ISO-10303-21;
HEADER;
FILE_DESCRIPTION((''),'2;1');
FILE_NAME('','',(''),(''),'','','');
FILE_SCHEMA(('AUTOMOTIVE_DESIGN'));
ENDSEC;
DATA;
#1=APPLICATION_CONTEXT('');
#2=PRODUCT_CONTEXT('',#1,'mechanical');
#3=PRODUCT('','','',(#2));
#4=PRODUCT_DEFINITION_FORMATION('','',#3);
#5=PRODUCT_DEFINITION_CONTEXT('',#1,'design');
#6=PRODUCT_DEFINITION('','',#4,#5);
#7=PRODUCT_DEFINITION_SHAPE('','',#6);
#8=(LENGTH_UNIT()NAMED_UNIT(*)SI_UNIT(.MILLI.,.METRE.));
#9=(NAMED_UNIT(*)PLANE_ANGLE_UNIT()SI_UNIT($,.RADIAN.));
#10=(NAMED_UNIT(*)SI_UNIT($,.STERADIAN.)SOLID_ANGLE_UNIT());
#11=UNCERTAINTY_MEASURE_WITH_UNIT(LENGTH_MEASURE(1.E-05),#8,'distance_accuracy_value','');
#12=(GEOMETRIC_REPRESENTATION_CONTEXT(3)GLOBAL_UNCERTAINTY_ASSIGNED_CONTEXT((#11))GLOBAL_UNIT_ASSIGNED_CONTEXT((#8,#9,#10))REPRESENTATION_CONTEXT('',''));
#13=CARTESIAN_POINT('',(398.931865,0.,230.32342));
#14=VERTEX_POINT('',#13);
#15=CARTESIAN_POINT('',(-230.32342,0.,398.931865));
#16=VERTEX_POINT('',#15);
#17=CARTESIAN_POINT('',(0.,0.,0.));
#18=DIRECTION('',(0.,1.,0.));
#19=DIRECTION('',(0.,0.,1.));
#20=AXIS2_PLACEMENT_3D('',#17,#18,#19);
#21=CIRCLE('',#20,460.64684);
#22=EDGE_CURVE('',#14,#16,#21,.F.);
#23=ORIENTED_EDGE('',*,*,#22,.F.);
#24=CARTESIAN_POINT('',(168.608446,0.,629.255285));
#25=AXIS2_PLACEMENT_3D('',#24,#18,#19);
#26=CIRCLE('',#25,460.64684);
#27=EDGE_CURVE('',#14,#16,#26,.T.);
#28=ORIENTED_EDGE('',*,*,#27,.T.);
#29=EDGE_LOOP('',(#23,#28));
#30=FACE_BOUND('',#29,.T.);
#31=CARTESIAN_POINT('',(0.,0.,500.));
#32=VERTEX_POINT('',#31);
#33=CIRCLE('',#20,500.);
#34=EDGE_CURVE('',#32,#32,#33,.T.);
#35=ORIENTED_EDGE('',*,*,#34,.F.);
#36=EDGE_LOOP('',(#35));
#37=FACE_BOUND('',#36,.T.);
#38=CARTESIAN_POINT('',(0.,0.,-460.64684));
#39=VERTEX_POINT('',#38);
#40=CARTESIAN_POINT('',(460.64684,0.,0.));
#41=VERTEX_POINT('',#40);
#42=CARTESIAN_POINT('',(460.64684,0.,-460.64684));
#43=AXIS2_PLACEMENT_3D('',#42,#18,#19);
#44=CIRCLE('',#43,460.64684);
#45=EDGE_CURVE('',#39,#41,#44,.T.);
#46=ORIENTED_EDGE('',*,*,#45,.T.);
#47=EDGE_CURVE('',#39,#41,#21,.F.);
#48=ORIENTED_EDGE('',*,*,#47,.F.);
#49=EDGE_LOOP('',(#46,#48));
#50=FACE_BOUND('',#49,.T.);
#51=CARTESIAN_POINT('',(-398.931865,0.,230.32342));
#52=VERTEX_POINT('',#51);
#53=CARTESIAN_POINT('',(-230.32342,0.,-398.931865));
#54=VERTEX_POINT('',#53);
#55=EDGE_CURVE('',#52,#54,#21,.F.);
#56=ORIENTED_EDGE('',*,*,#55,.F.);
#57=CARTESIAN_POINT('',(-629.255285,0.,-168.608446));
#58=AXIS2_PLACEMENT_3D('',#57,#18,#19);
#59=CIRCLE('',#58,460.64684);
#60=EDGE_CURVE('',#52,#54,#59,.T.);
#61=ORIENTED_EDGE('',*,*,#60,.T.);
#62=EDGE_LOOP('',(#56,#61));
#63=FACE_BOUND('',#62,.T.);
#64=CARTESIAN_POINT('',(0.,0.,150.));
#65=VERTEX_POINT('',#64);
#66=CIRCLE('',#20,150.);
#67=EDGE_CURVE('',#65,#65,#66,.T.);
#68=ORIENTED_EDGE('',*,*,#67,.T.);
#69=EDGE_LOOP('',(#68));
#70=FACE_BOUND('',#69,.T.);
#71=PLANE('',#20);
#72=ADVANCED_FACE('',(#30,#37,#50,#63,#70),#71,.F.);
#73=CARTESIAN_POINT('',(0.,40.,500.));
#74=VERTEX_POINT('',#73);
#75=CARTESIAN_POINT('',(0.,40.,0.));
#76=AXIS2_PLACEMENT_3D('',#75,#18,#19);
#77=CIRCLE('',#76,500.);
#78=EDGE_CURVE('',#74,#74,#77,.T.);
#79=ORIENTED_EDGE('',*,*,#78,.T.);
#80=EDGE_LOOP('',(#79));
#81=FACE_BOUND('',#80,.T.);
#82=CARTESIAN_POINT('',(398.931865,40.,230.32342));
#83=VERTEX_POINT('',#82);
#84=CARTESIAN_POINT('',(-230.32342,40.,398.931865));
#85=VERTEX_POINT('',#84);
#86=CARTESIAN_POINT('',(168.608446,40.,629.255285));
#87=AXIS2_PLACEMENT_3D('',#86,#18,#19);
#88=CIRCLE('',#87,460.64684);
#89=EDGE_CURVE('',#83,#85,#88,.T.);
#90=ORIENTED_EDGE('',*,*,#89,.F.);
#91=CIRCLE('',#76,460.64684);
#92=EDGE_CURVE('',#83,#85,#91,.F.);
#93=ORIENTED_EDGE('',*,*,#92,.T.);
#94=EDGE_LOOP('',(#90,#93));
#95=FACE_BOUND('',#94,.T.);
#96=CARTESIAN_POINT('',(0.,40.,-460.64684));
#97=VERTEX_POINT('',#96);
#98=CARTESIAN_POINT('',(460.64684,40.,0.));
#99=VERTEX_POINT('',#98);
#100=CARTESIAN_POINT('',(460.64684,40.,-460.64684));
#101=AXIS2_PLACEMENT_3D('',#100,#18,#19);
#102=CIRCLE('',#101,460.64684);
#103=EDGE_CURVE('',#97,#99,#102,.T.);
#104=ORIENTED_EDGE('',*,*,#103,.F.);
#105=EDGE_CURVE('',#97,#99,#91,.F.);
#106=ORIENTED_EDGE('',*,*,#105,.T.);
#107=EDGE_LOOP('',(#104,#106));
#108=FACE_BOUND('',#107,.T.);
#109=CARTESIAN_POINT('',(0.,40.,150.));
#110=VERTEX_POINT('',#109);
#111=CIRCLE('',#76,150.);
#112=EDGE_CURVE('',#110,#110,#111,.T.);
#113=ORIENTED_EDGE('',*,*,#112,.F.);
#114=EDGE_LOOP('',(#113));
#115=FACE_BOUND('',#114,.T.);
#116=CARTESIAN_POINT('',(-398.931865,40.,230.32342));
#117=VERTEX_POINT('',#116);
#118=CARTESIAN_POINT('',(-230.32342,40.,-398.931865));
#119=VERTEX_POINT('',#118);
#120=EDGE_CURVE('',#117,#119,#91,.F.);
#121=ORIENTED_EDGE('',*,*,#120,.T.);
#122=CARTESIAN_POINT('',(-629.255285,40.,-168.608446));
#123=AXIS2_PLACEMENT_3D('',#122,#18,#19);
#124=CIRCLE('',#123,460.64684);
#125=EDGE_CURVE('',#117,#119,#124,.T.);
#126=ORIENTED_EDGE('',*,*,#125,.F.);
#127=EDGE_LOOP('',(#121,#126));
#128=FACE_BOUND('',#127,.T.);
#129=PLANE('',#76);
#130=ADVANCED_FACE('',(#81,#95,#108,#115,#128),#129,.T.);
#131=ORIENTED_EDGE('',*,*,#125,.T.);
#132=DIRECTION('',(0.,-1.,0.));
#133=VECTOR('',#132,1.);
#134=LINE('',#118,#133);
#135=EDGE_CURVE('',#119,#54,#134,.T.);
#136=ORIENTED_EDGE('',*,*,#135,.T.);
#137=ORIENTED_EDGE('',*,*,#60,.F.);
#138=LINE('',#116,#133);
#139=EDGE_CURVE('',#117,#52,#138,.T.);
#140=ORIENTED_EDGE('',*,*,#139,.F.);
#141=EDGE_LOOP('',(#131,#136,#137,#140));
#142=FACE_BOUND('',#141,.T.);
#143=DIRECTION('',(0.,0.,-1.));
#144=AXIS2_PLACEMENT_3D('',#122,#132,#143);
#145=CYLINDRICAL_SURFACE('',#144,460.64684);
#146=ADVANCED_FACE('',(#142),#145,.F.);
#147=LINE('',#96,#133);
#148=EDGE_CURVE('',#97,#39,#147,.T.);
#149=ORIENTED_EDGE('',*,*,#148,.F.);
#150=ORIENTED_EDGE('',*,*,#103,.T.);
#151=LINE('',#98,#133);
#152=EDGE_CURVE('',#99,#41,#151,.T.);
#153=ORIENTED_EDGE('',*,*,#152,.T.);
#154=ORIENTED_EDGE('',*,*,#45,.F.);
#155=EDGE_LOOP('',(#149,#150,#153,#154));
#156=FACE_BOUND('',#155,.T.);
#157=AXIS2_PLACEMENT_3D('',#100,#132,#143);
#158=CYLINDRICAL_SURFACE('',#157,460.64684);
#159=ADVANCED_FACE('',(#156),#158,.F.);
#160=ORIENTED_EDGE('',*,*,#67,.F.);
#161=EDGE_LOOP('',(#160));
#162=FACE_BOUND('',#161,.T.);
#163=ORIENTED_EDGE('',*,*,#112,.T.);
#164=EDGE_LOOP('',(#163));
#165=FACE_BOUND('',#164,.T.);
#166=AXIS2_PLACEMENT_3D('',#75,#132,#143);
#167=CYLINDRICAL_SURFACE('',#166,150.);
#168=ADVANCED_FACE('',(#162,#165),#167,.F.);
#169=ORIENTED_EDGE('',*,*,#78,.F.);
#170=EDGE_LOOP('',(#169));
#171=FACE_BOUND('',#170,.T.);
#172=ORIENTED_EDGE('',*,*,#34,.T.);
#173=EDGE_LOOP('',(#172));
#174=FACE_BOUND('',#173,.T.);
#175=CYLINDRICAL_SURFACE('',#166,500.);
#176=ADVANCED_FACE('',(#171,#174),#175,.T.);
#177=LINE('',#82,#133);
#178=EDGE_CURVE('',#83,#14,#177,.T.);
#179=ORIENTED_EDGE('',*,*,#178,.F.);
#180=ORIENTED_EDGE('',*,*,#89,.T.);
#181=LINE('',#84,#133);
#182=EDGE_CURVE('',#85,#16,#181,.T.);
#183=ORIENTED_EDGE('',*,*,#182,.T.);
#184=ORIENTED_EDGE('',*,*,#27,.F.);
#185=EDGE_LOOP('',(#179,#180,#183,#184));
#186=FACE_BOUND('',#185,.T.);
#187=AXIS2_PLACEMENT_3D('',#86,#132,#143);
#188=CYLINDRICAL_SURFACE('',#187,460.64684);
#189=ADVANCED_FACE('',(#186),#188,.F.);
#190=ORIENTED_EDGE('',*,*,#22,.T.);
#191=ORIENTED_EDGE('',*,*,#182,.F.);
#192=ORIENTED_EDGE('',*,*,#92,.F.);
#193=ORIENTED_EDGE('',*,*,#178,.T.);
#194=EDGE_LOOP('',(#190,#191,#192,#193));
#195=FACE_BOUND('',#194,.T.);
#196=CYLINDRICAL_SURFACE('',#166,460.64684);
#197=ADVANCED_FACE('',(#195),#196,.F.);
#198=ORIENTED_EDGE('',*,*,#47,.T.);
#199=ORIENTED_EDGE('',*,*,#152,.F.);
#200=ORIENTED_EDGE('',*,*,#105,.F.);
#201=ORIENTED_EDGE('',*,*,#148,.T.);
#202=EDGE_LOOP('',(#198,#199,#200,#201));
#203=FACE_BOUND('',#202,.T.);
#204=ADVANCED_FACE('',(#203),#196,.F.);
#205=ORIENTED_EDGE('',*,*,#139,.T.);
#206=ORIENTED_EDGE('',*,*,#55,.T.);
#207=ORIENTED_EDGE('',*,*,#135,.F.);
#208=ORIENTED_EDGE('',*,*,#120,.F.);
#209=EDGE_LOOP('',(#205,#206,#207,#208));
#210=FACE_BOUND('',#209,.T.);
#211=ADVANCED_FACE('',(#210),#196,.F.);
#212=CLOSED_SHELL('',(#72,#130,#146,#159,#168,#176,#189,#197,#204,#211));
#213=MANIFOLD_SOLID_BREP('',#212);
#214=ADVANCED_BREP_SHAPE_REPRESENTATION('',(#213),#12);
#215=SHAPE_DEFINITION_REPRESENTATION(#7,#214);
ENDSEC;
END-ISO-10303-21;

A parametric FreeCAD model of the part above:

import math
import FreeCAD as App
import Part
import Sketcher
from FreeCAD import Vector
Q = App.Units.Quantity

doc = App.newDocument("Part")
body = doc.addObject("PartDesign::Body", "Body")

# Sketch on XZ plane
sketch1 = body.newObject("Sketcher::SketchObject", "Sketch")
sketch1.AttachmentSupport = (doc.getObject("XZ_Plane"), [""])
sketch1.MapMode = "FlatFace"
sketch1.addGeometry(Part.Circle(Vector(0, 0, 0), Vector(0, 0, 1), 500), False)
sketch1.addGeometry(Part.ArcOfCircle(Part.Circle(Vector(-629, -169, 0), Vector(0, 0, 1), 461), math.radians(-30), math.radians(60)), False)
sketch1.addGeometry(Part.ArcOfCircle(Part.Circle(Vector(0, 0, 0), Vector(0, 0, 1), 461), math.radians(150), math.radians(240)), False)
sketch1.addGeometry(Part.Circle(Vector(0, 0, 0), Vector(0, 0, 1), 150), False)
sketch1.addGeometry(Part.ArcOfCircle(Part.Circle(Vector(461, -461, 0), Vector(0, 0, 1), 461), math.radians(90), math.radians(180)), False)
sketch1.addGeometry(Part.ArcOfCircle(Part.Circle(Vector(0, 0, 0), Vector(0, 0, 1), 461), math.radians(-90), math.radians(0)), False)
sketch1.addGeometry(Part.ArcOfCircle(Part.Circle(Vector(169, 629, 0), Vector(0, 0, 1), 461), math.radians(-150), math.radians(-60)), False)
sketch1.addGeometry(Part.ArcOfCircle(Part.Circle(Vector(0, 0, 0), Vector(0, 0, 1), 461), math.radians(30), math.radians(120)), False)
sketch1.addConstraint(Sketcher.Constraint("Coincident", 1, 1, 2, 2))
sketch1.addConstraint(Sketcher.Constraint("Coincident", 2, 1, 1, 2))
sketch1.addConstraint(Sketcher.Constraint("Coincident", 4, 1, 5, 2))
sketch1.addConstraint(Sketcher.Constraint("Coincident", 5, 1, 4, 2))
sketch1.addConstraint(Sketcher.Constraint("Coincident", 6, 1, 7, 2))
sketch1.addConstraint(Sketcher.Constraint("Coincident", 7, 1, 6, 2))
sketch1.addConstraint(Sketcher.Constraint("Coincident", 0, 3, -1, 1))
sketch1.addConstraint(Sketcher.Constraint("Coincident", 2, 3, -1, 1))
sketch1.addConstraint(Sketcher.Constraint("Coincident", 3, 3, -1, 1))
sketch1.addConstraint(Sketcher.Constraint("Coincident", 5, 3, -1, 1))
sketch1.addConstraint(Sketcher.Constraint("Coincident", 7, 3, -1, 1))
sketch1.addConstraint(Sketcher.Constraint("Equal", 1, 2))
sketch1.addConstraint(Sketcher.Constraint("Equal", 2, 4))
sketch1.addConstraint(Sketcher.Constraint("Equal", 4, 5))
sketch1.addConstraint(Sketcher.Constraint("Equal", 5, 6))
sketch1.addConstraint(Sketcher.Constraint("Equal", 6, 7))
sketch1.addConstraint(Sketcher.Constraint("PointOnObject", 4, 1, -1))
sketch1.addConstraint(Sketcher.Constraint("PointOnObject", 5, 1, -2))
sketch1.addConstraint(Sketcher.Constraint("Horizontal", 2, 1, 7, 1))
sketch1.addConstraint(Sketcher.Constraint("Vertical", 1, 1, 6, 1))
sketch1.addConstraint(Sketcher.Constraint("Diameter", 0, Q("1000 mm")))
sketch1.addConstraint(Sketcher.Constraint("Diameter", 3, Q("300 mm")))
sketch1.addConstraint(Sketcher.Constraint("Radius", 1, Q("460.64684 mm")))
sketch1.addConstraint(Sketcher.Constraint("DistanceX", 1, 1, -1, 1, Q("230.32342 mm")))
sketch1.addConstraint(Sketcher.Constraint("DistanceX", 1, 3, -1, 1, Q("629.255285 mm")))
pad1 = body.newObject("PartDesign::Pad", "Pad")
pad1.Profile = sketch1
pad1.Length = 40
pad1.Reversed = True

doc.recompute()
